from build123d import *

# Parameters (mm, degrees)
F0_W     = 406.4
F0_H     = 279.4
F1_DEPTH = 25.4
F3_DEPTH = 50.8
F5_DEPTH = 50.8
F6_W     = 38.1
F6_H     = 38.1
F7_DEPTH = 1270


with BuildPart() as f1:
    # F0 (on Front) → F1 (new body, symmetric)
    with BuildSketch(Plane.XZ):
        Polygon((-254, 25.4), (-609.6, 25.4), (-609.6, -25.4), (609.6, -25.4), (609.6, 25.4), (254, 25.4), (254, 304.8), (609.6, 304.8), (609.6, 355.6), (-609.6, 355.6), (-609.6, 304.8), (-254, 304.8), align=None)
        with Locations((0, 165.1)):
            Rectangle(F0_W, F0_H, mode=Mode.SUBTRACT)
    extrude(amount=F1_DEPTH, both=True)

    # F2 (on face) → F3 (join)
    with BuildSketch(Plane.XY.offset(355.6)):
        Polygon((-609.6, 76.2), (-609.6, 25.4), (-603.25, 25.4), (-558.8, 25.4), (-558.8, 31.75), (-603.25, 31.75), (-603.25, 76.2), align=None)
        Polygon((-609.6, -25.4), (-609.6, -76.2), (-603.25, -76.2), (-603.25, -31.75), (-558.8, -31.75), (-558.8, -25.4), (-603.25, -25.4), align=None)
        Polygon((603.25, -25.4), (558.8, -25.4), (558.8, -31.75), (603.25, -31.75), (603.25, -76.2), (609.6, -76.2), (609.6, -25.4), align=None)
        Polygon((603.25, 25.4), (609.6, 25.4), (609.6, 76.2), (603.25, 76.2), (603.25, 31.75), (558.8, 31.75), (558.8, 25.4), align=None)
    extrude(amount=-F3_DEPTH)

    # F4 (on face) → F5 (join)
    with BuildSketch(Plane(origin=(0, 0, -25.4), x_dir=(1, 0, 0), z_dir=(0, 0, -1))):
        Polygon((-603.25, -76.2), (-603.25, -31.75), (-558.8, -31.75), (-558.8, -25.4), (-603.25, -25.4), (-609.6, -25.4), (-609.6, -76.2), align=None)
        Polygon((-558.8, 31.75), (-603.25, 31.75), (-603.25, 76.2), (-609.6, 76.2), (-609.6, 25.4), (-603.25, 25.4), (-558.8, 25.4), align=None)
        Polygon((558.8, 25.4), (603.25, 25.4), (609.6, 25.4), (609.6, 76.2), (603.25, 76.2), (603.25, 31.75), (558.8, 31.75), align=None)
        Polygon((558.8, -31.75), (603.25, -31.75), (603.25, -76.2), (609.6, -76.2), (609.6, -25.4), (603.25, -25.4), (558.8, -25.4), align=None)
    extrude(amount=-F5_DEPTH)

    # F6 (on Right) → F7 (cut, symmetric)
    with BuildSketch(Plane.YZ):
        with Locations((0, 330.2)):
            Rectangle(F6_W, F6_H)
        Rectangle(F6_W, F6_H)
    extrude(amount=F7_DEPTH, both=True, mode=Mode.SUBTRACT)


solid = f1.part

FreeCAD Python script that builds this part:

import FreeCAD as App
import Part
import Sketcher
Q = App.Units.Quantity

doc = App.newDocument("Part")
params = doc.addObject("Spreadsheet::Sheet", "Params")
for row, (alias, value) in enumerate([
    ("sketch1_width", "14 in"),
    ("sketch1_width2", "48 in"),
    ("sketch1_width3", "16 in"),
    ("sketch1_height", "2 in"),
    ("sketch1_height2", "11 in"),
    ("pad1_length", "2 in"),
    ("sketch2_width", "2 in"),
    ("sketch2_width2", "1.75 in"),
    ("pad2_length", "2 in"),
    ("sketch3_width", "2 in"),
    ("sketch3_width2", "1.75 in"),
    ("pad3_length", "2 in"),
    ("sketch4_width", "1.5 in"),
    ("pocket1_length", "100 in"),
], start=1):
    params.set(f"A{row}", alias)
    params.set(f"B{row}", "=" + value)
    params.setAlias(f"B{row}", alias)

body = doc.addObject("PartDesign::Body", "Body")

# Sketch on XZ plane
sketch1 = body.newObject("Sketcher::SketchObject", "Sketch")
sketch1.AttachmentSupport = (doc.getObject("XZ_Plane"), [""])
sketch1.MapMode = "FlatFace"
sketch1.addGeometry(Part.LineSegment(App.Vector(-254, 25, 0), App.Vector(-610, 25, 0)), False)
sketch1.addGeometry(Part.LineSegment(App.Vector(-610, 25, 0), App.Vector(-610, -25, 0)), False)
sketch1.addGeometry(Part.LineSegment(App.Vector(-610, -25, 0), App.Vector(610, -25, 0)), False)
sketch1.addGeometry(Part.LineSegment(App.Vector(610, -25, 0), App.Vector(610, 25, 0)), False)
sketch1.addGeometry(Part.LineSegment(App.Vector(610, 25, 0), App.Vector(254, 25, 0)), False)
sketch1.addGeometry(Part.LineSegment(App.Vector(254, 25, 0), App.Vector(254, 305, 0)), False)
sketch1.addGeometry(Part.LineSegment(App.Vector(254, 305, 0), App.Vector(610, 305, 0)), False)
sketch1.addGeometry(Part.LineSegment(App.Vector(610, 305, 0), App.Vector(610, 356, 0)), False)
sketch1.addGeometry(Part.LineSegment(App.Vector(610, 356, 0), App.Vector(-610, 356, 0)), False)
sketch1.addGeometry(Part.LineSegment(App.Vector(-610, 356, 0), App.Vector(-610, 305, 0)), False)
sketch1.addGeometry(Part.LineSegment(App.Vector(-610, 305, 0), App.Vector(-254, 305, 0)), False)
sketch1.addGeometry(Part.LineSegment(App.Vector(-254, 305, 0), App.Vector(-254, 25, 0)), False)
sketch1.addGeometry(Part.LineSegment(App.Vector(203, 25, 0), App.Vector(-203, 25, 0)), False)
sketch1.addGeometry(Part.LineSegment(App.Vector(-203, 25, 0), App.Vector(-203, 305, 0)), False)
sketch1.addGeometry(Part.LineSegment(App.Vector(-203, 305, 0), App.Vector(203, 305, 0)), False)
sketch1.addGeometry(Part.LineSegment(App.Vector(203, 305, 0), App.Vector(203, 25, 0)), False)
sketch1.addConstraint(Sketcher.Constraint("Coincident", 0, 2, 1, 1))
sketch1.addConstraint(Sketcher.Constraint("Coincident", 1, 2, 2, 1))
sketch1.addConstraint(Sketcher.Constraint("Coincident", 2, 2, 3, 1))
sketch1.addConstraint(Sketcher.Constraint("Coincident", 3, 2, 4, 1))
sketch1.addConstraint(Sketcher.Constraint("Coincident", 4, 2, 5, 1))
sketch1.addConstraint(Sketcher.Constraint("Coincident", 5, 2, 6, 1))
sketch1.addConstraint(Sketcher.Constraint("Coincident", 6, 2, 7, 1))
sketch1.addConstraint(Sketcher.Constraint("Coincident", 7, 2, 8, 1))
sketch1.addConstraint(Sketcher.Constraint("Coincident", 8, 2, 9, 1))
sketch1.addConstraint(Sketcher.Constraint("Coincident", 9, 2, 10, 1))
sketch1.addConstraint(Sketcher.Constraint("Coincident", 10, 2, 11, 1))
sketch1.addConstraint(Sketcher.Constraint("Coincident", 11, 2, 0, 1))
sketch1.addConstraint(Sketcher.Constraint("Coincident", 12, 2, 13, 1))
sketch1.addConstraint(Sketcher.Constraint("Coincident", 13, 2, 14, 1))
sketch1.addConstraint(Sketcher.Constraint("Coincident", 14, 2, 15, 1))
sketch1.addConstraint(Sketcher.Constraint("Coincident", 15, 2, 12, 1))
sketch1.addConstraint(Sketcher.Constraint("Horizontal", 0))
sketch1.addConstraint(Sketcher.Constraint("Vertical", 1))
sketch1.addConstraint(Sketcher.Constraint("Horizontal", 2))
sketch1.addConstraint(Sketcher.Constraint("Vertical", 3))
sketch1.addConstraint(Sketcher.Constraint("Horizontal", 4))
sketch1.addConstraint(Sketcher.Constraint("Vertical", 5))
sketch1.addConstraint(Sketcher.Constraint("Horizontal", 6))
sketch1.addConstraint(Sketcher.Constraint("Vertical", 7))
sketch1.addConstraint(Sketcher.Constraint("Horizontal", 8))
sketch1.addConstraint(Sketcher.Constraint("Vertical", 9))
sketch1.addConstraint(Sketcher.Constraint("Horizontal", 10))
sketch1.addConstraint(Sketcher.Constraint("Vertical", 11))
sketch1.addConstraint(Sketcher.Constraint("Horizontal", 12))
sketch1.addConstraint(Sketcher.Constraint("Vertical", 13))
sketch1.addConstraint(Sketcher.Constraint("Horizontal", 14))
sketch1.addConstraint(Sketcher.Constraint("Vertical", 15))
sketch1.addConstraint(Sketcher.Constraint("Symmetric", 0, 2, 2, 2, -1, 1))
sketch1.addConstraint(Sketcher.Constraint("Symmetric", 6, 2, 9, 2, -2))
sketch1.addConstraint(Sketcher.Constraint("Symmetric", 4, 2, 11, 2, -2))
sketch1.addConstraint(Sketcher.Constraint("Horizontal", 11, 2, 12, 2))
sketch1.addConstraint(Sketcher.Constraint("Horizontal", 10, 2, 13, 2))
sketch1.addConstraint(Sketcher.Constraint("Vertical", 3, 2, 6, 2))
sketch1.addConstraint(Sketcher.Constraint("Equal", 3, 7))
sketch1.addConstraint(Sketcher.Constraint("DistanceX", 0, 2, 0, 1, Q("14 in")))
sketch1.addConstraint(Sketcher.Constraint("DistanceX", 2, 1, 2, 2, Q("48 in")))
sketch1.addConstraint(Sketcher.Constraint("DistanceX", 12, 2, 12, 1, Q("16 in")))
sketch1.addConstraint(Sketcher.Constraint("DistanceY", 1, 2, 1, 1, Q("2 in")))
sketch1.addConstraint(Sketcher.Constraint("DistanceY", 5, 1, 5, 2, Q("11 in")))
sketch1.addConstraint(Sketcher.Constraint("DistanceX", 12, 2, -1, 1, Q("8 in")))
sketch1.setExpression("Constraints[39]", "Params.sketch1_width")
sketch1.setExpression("Constraints[40]", "Params.sketch1_width2")
sketch1.setExpression("Constraints[41]", "Params.sketch1_width3")
sketch1.setExpression("Constraints[42]", "Params.sketch1_height")
sketch1.setExpression("Constraints[43]", "Params.sketch1_height2")
pad1 = body.newObject("PartDesign::Pad", "Pad")
pad1.Profile = sketch1
pad1.setExpression("Length", "Params.pad1_length")
pad1.Midplane = True

# Sketch on XY plane
sketch2 = body.newObject("Sketcher::SketchObject", "Sketch001")
sketch2.AttachmentSupport = (doc.getObject("XY_Plane"), [""])
sketch2.MapMode = "FlatFace"
sketch2.AttachmentOffset = App.Placement(App.Vector(0, 0, 14 * 25.4), App.Rotation())
sketch2.addGeometry(Part.LineSegment(App.Vector(-610, 76, 0), App.Vector(-610, 25, 0)), False)
sketch2.addGeometry(Part.LineSegment(App.Vector(-610, 25, 0), App.Vector(-559, 25, 0)), False)
sketch2.addGeometry(Part.LineSegment(App.Vector(-559, 25, 0), App.Vector(-559, 32, 0)), False)
sketch2.addGeometry(Part.LineSegment(App.Vector(-559, 32, 0), App.Vector(-603, 32, 0)), False)
sketch2.addGeometry(Part.LineSegment(App.Vector(-603, 32, 0), App.Vector(-603, 76, 0)), False)
sketch2.addGeometry(Part.LineSegment(App.Vector(-603, 76, 0), App.Vector(-610, 76, 0)), False)
sketch2.addGeometry(Part.LineSegment(App.Vector(-610, -25, 0), App.Vector(-610, -76, 0)), False)
sketch2.addGeometry(Part.LineSegment(App.Vector(-610, -76, 0), App.Vector(-603, -76, 0)), False)
sketch2.addGeometry(Part.LineSegment(App.Vector(-603, -76, 0), App.Vector(-603, -32, 0)), False)
sketch2.addGeometry(Part.LineSegment(App.Vector(-603, -32, 0), App.Vector(-559, -32, 0)), False)
sketch2.addGeometry(Part.LineSegment(App.Vector(-559, -32, 0), App.Vector(-559, -25, 0)), False)
sketch2.addGeometry(Part.LineSegment(App.Vector(-559, -25, 0), App.Vector(-610, -25, 0)), False)
sketch2.addGeometry(Part.LineSegment(App.Vector(559, -25, 0), App.Vector(559, -32, 0)), False)
sketch2.addGeometry(Part.LineSegment(App.Vector(559, -32, 0), App.Vector(603, -32, 0)), False)
sketch2.addGeometry(Part.LineSegment(App.Vector(603, -32, 0), App.Vector(603, -76, 0)), False)
sketch2.addGeometry(Part.LineSegment(App.Vector(603, -76, 0), App.Vector(610, -76, 0)), False)
sketch2.addGeometry(Part.LineSegment(App.Vector(610, -76, 0), App.Vector(610, -25, 0)), False)
sketch2.addGeometry(Part.LineSegment(App.Vector(610, -25, 0), App.Vector(559, -25, 0)), False)
sketch2.addGeometry(Part.LineSegment(App.Vector(610, 25, 0), App.Vector(610, 76, 0)), False)
sketch2.addGeometry(Part.LineSegment(App.Vector(610, 76, 0), App.Vector(603, 76, 0)), False)
sketch2.addGeometry(Part.LineSegment(App.Vector(603, 76, 0), App.Vector(603, 32, 0)), False)
sketch2.addGeometry(Part.LineSegment(App.Vector(603, 32, 0), App.Vector(559, 32, 0)), False)
sketch2.addGeometry(Part.LineSegment(App.Vector(559, 32, 0), App.Vector(559, 25, 0)), False)
sketch2.addGeometry(Part.LineSegment(App.Vector(559, 25, 0), App.Vector(610, 25, 0)), False)
sketch2.addConstraint(Sketcher.Constraint("Coincident", 0, 2, 1, 1))
sketch2.addConstraint(Sketcher.Constraint("Coincident", 1, 2, 2, 1))
sketch2.addConstraint(Sketcher.Constraint("Coincident", 2, 2, 3, 1))
sketch2.addConstraint(Sketcher.Constraint("Coincident", 3, 2, 4, 1))
sketch2.addConstraint(Sketcher.Constraint("Coincident", 4, 2, 5, 1))
sketch2.addConstraint(Sketcher.Constraint("Coincident", 5, 2, 0, 1))
sketch2.addConstraint(Sketcher.Constraint("Coincident", 6, 2, 7, 1))
sketch2.addConstraint(Sketcher.Constraint("Coincident", 7, 2, 8, 1))
sketch2.addConstraint(Sketcher.Constraint("Coincident", 8, 2, 9, 1))
sketch2.addConstraint(Sketcher.Constraint("Coincident", 9, 2, 10, 1))
sketch2.addConstraint(Sketcher.Constraint("Coincident", 10, 2, 11, 1))
sketch2.addConstraint(Sketcher.Constraint("Coincident", 11, 2, 6, 1))
sketch2.addConstraint(Sketcher.Constraint("Coincident", 12, 2, 13, 1))
sketch2.addConstraint(Sketcher.Constraint("Coincident", 13, 2, 14, 1))
sketch2.addConstraint(Sketcher.Constraint("Coincident", 14, 2, 15, 1))
sketch2.addConstraint(Sketcher.Constraint("Coincident", 15, 2, 16, 1))
sketch2.addConstraint(Sketcher.Constraint("Coincident", 16, 2, 17, 1))
sketch2.addConstraint(Sketcher.Constraint("Coincident", 17, 2, 12, 1))
sketch2.addConstraint(Sketcher.Constraint("Coincident", 18, 2, 19, 1))
sketch2.addConstraint(Sketcher.Constraint("Coincident", 19, 2, 20, 1))
sketch2.addConstraint(Sketcher.Constraint("Coincident", 20, 2, 21, 1))
sketch2.addConstraint(Sketcher.Constraint("Coincident", 21, 2, 22, 1))
sketch2.addConstraint(Sketcher.Constraint("Coincident", 22, 2, 23, 1))
sketch2.addConstraint(Sketcher.Constraint("Coincident", 23, 2, 18, 1))
sketch2.addConstraint(Sketcher.Constraint("Vertical", 0))
sketch2.addConstraint(Sketcher.Constraint("Horizontal", 1))
sketch2.addConstraint(Sketcher.Constraint("Vertical", 2))
sketch2.addConstraint(Sketcher.Constraint("Horizontal", 3))
sketch2.addConstraint(Sketcher.Constraint("Vertical", 4))
sketch2.addConstraint(Sketcher.Constraint("Horizontal", 5))
sketch2.addConstraint(Sketcher.Constraint("Vertical", 6))
sketch2.addConstraint(Sketcher.Constraint("Horizontal", 7))
sketch2.addConstraint(Sketcher.Constraint("Vertical", 8))
sketch2.addConstraint(Sketcher.Constraint("Horizontal", 9))
sketch2.addConstraint(Sketcher.Constraint("Vertical", 10))
sketch2.addConstraint(Sketcher.Constraint("Horizontal", 11))
sketch2.addConstraint(Sketcher.Constraint("Vertical", 12))
sketch2.addConstraint(Sketcher.Constraint("Horizontal", 13))
sketch2.addConstraint(Sketcher.Constraint("Vertical", 14))
sketch2.addConstraint(Sketcher.Constraint("Horizontal", 15))
sketch2.addConstraint(Sketcher.Constraint("Vertical", 16))
sketch2.addConstraint(Sketcher.Constraint("Horizontal", 17))
sketch2.addConstraint(Sketcher.Constraint("Vertical", 18))
sketch2.addConstraint(Sketcher.Constraint("Horizontal", 19))
sketch2.addConstraint(Sketcher.Constraint("Vertical", 20))
sketch2.addConstraint(Sketcher.Constraint("Horizontal", 21))
sketch2.addConstraint(Sketcher.Constraint("Vertical", 22))
sketch2.addConstraint(Sketcher.Constraint("Horizontal", 23))
sketch2.addConstraint(Sketcher.Constraint("Symmetric", 2, 2, 12, 2, -1, 1))
sketch2.addConstraint(Sketcher.Constraint("Symmetric", 4, 2, 14, 2, -1, 1))
sketch2.addConstraint(Sketcher.Constraint("Symmetric", 0, 2, 16, 2, -1, 1))
sketch2.addConstraint(Sketcher.Constraint("Symmetric", 6, 2, 18, 2, -1, 1))
sketch2.addConstraint(Sketcher.Constraint("Symmetric", 8, 2, 20, 2, -1, 1))
sketch2.addConstraint(Sketcher.Constraint("Symmetric", 10, 2, 22, 2, -1, 1))
sketch2.addConstraint(Sketcher.Constraint("Symmetric", 9, 2, 12, 2, -2))
sketch2.addConstraint(Sketcher.Constraint("Symmetric", 7, 2, 14, 2, -2))
sketch2.addConstraint(Sketcher.Constraint("Symmetric", 11, 2, 16, 2, -2))
sketch2.addConstraint(Sketcher.Constraint("Equal", 23, 0))
sketch2.addConstraint(Sketcher.Constraint("Equal", 19, 2))
sketch2.addConstraint(Sketcher.Constraint("DistanceX", 1, 1, 1, 2, Q("2 in")))
sketch2.addConstraint(Sketcher.Constraint("DistanceX", 0, 2, -1, 1, Q("24 in")))
sketch2.addConstraint(Sketcher.Constraint("DistanceY", -1, 1, 0, 2, Q("1 in")))
sketch2.addConstraint(Sketcher.Constraint("DistanceX", 3, 2, 3, 1, Q("1.75 in")))
sketch2.setExpression("Constraints[59]", "Params.sketch2_width")
sketch2.setExpression("Constraints[62]", "Params.sketch2_width2")
pad2 = body.newObject("PartDesign::Pad", "Pad001")
pad2.Profile = sketch2
pad2.setExpression("Length", "Params.pad2_length")
pad2.Reversed = True

# Sketch on XY plane
sketch3 = body.newObject("Sketcher::SketchObject", "Sketch002")
sketch3.AttachmentSupport = (doc.getObject("XY_Plane"), [""])
sketch3.MapMode = "FlatFace"
sketch3.AttachmentOffset = App.Placement(App.Vector(0, 0, -1 * 25.4), App.Rotation())
sketch3.addGeometry(Part.LineSegment(App.Vector(-603, 76, 0), App.Vector(-603, 32, 0)), False)
sketch3.addGeometry(Part.LineSegment(App.Vector(-603, 32, 0), App.Vector(-559, 32, 0)), False)
sketch3.addGeometry(Part.LineSegment(App.Vector(-559, 32, 0), App.Vector(-559, 25, 0)), False)
sketch3.addGeometry(Part.LineSegment(App.Vector(-559, 25, 0), App.Vector(-610, 25, 0)), False)
sketch3.addGeometry(Part.LineSegment(App.Vector(-610, 25, 0), App.Vector(-610, 76, 0)), False)
sketch3.addGeometry(Part.LineSegment(App.Vector(-610, 76, 0), App.Vector(-603, 76, 0)), False)
sketch3.addGeometry(Part.LineSegment(App.Vector(-559, -32, 0), App.Vector(-603, -32, 0)), False)
sketch3.addGeometry(Part.LineSegment(App.Vector(-603, -32, 0), App.Vector(-603, -76, 0)), False)
sketch3.addGeometry(Part.LineSegment(App.Vector(-603, -76, 0), App.Vector(-610, -76, 0)), False)
sketch3.addGeometry(Part.LineSegment(App.Vector(-610, -76, 0), App.Vector(-610, -25, 0)), False)
sketch3.addGeometry(Part.LineSegment(App.Vector(-610, -25, 0), App.Vector(-559, -25, 0)), False)
sketch3.addGeometry(Part.LineSegment(App.Vector(-559, -25, 0), App.Vector(-559, -32, 0)), False)
sketch3.addGeometry(Part.LineSegment(App.Vector(559, -25, 0), App.Vector(610, -25, 0)), False)
sketch3.addGeometry(Part.LineSegment(App.Vector(610, -25, 0), App.Vector(610, -76, 0)), False)
sketch3.addGeometry(Part.LineSegment(App.Vector(610, -76, 0), App.Vector(603, -76, 0)), False)
sketch3.addGeometry(Part.LineSegment(App.Vector(603, -76, 0), App.Vector(603, -32, 0)), False)
sketch3.addGeometry(Part.LineSegment(App.Vector(603, -32, 0), App.Vector(559, -32, 0)), False)
sketch3.addGeometry(Part.LineSegment(App.Vector(559, -32, 0), App.Vector(559, -25, 0)), False)
sketch3.addGeometry(Part.LineSegment(App.Vector(559, 32, 0), App.Vector(603, 32, 0)), False)
sketch3.addGeometry(Part.LineSegment(App.Vector(603, 32, 0), App.Vector(603, 76, 0)), False)
sketch3.addGeometry(Part.LineSegment(App.Vector(603, 76, 0), App.Vector(610, 76, 0)), False)
sketch3.addGeometry(Part.LineSegment(App.Vector(610, 76, 0), App.Vector(610, 25, 0)), False)
sketch3.addGeometry(Part.LineSegment(App.Vector(610, 25, 0), App.Vector(559, 25, 0)), False)
sketch3.addGeometry(Part.LineSegment(App.Vector(559, 25, 0), App.Vector(559, 32, 0)), False)
sketch3.addConstraint(Sketcher.Constraint("Coincident", 0, 2, 1, 1))
sketch3.addConstraint(Sketcher.Constraint("Coincident", 1, 2, 2, 1))
sketch3.addConstraint(Sketcher.Constraint("Coincident", 2, 2, 3, 1))
sketch3.addConstraint(Sketcher.Constraint("Coincident", 3, 2, 4, 1))
sketch3.addConstraint(Sketcher.Constraint("Coincident", 4, 2, 5, 1))
sketch3.addConstraint(Sketcher.Constraint("Coincident", 5, 2, 0, 1))
sketch3.addConstraint(Sketcher.Constraint("Coincident", 6, 2, 7, 1))
sketch3.addConstraint(Sketcher.Constraint("Coincident", 7, 2, 8, 1))
sketch3.addConstraint(Sketcher.Constraint("Coincident", 8, 2, 9, 1))
sketch3.addConstraint(Sketcher.Constraint("Coincident", 9, 2, 10, 1))
sketch3.addConstraint(Sketcher.Constraint("Coincident", 10, 2, 11, 1))
sketch3.addConstraint(Sketcher.Constraint("Coincident", 11, 2, 6, 1))
sketch3.addConstraint(Sketcher.Constraint("Coincident", 12, 2, 13, 1))
sketch3.addConstraint(Sketcher.Constraint("Coincident", 13, 2, 14, 1))
sketch3.addConstraint(Sketcher.Constraint("Coincident", 14, 2, 15, 1))
sketch3.addConstraint(Sketcher.Constraint("Coincident", 15, 2, 16, 1))
sketch3.addConstraint(Sketcher.Constraint("Coincident", 16, 2, 17, 1))
sketch3.addConstraint(Sketcher.Constraint("Coincident", 17, 2, 12, 1))
sketch3.addConstraint(Sketcher.Constraint("Coincident", 18, 2, 19, 1))
sketch3.addConstraint(Sketcher.Constraint("Coincident", 19, 2, 20, 1))
sketch3.addConstraint(Sketcher.Constraint("Coincident", 20, 2, 21, 1))
sketch3.addConstraint(Sketcher.Constraint("Coincident", 21, 2, 22, 1))
sketch3.addConstraint(Sketcher.Constraint("Coincident", 22, 2, 23, 1))
sketch3.addConstraint(Sketcher.Constraint("Coincident", 23, 2, 18, 1))
sketch3.addConstraint(Sketcher.Constraint("Vertical", 0))
sketch3.addConstraint(Sketcher.Constraint("Horizontal", 1))
sketch3.addConstraint(Sketcher.Constraint("Vertical", 2))
sketch3.addConstraint(Sketcher.Constraint("Horizontal", 3))
sketch3.addConstraint(Sketcher.Constraint("Vertical", 4))
sketch3.addConstraint(Sketcher.Constraint("Horizontal", 5))
sketch3.addConstraint(Sketcher.Constraint("Horizontal", 6))
sketch3.addConstraint(Sketcher.Constraint("Vertical", 7))
sketch3.addConstraint(Sketcher.Constraint("Horizontal", 8))
sketch3.addConstraint(Sketcher.Constraint("Vertical", 9))
sketch3.addConstraint(Sketcher.Constraint("Horizontal", 10))
sketch3.addConstraint(Sketcher.Constraint("Vertical", 11))
sketch3.addConstraint(Sketcher.Constraint("Horizontal", 12))
sketch3.addConstraint(Sketcher.Constraint("Vertical", 13))
sketch3.addConstraint(Sketcher.Constraint("Horizontal", 14))
sketch3.addConstraint(Sketcher.Constraint("Vertical", 15))
sketch3.addConstraint(Sketcher.Constraint("Horizontal", 16))
sketch3.addConstraint(Sketcher.Constraint("Vertical", 17))
sketch3.addConstraint(Sketcher.Constraint("Horizontal", 18))
sketch3.addConstraint(Sketcher.Constraint("Vertical", 19))
sketch3.addConstraint(Sketcher.Constraint("Horizontal", 20))
sketch3.addConstraint(Sketcher.Constraint("Vertical", 21))
sketch3.addConstraint(Sketcher.Constraint("Horizontal", 22))
sketch3.addConstraint(Sketcher.Constraint("Vertical", 23))
sketch3.addConstraint(Sketcher.Constraint("Symmetric", 3, 2, 12, 2, -1, 1))
sketch3.addConstraint(Sketcher.Constraint("Symmetric", 5, 2, 14, 2, -1, 1))
sketch3.addConstraint(Sketcher.Constraint("Symmetric", 1, 2, 16, 2, -1, 1))
sketch3.addConstraint(Sketcher.Constraint("Symmetric", 6, 2, 18, 2, -1, 1))
sketch3.addConstraint(Sketcher.Constraint("Symmetric", 8, 2, 20, 2, -1, 1))
sketch3.addConstraint(Sketcher.Constraint("Symmetric", 10, 2, 22, 2, -1, 1))
sketch3.addConstraint(Sketcher.Constraint("Symmetric", 9, 2, 12, 2, -2))
sketch3.addConstraint(Sketcher.Constraint("Symmetric", 7, 2, 14, 2, -2))
sketch3.addConstraint(Sketcher.Constraint("Symmetric", 11, 2, 16, 2, -2))
sketch3.addConstraint(Sketcher.Constraint("Equal", 18, 0))
sketch3.addConstraint(Sketcher.Constraint("Equal", 20, 2))
sketch3.addConstraint(Sketcher.Constraint("DistanceX", 3, 2, 3, 1, Q("2 in")))
sketch3.addConstraint(Sketcher.Constraint("DistanceX", 1, 2, -1, 1, Q("22 in")))
sketch3.addConstraint(Sketcher.Constraint("DistanceY", -1, 1, 2, 2, Q("1 in")))
sketch3.addConstraint(Sketcher.Constraint("DistanceX", 1, 1, 1, 2, Q("1.75 in")))
sketch3.setExpression("Constraints[59]", "Params.sketch3_width")
sketch3.setExpression("Constraints[62]", "Params.sketch3_width2")
pad3 = body.newObject("PartDesign::Pad", "Pad002")
pad3.Profile = sketch3
pad3.setExpression("Length", "Params.pad3_length")

# Sketch on YZ plane
sketch4 = body.newObject("Sketcher::SketchObject", "Sketch003")
sketch4.AttachmentSupport = (doc.getObject("YZ_Plane"), [""])
sketch4.MapMode = "FlatFace"
sketch4.addGeometry(Part.LineSegment(App.Vector(-19, 349, 0), App.Vector(-19, 311, 0)), False)
sketch4.addGeometry(Part.LineSegment(App.Vector(-19, 311, 0), App.Vector(19, 311, 0)), False)
sketch4.addGeometry(Part.LineSegment(App.Vector(19, 311, 0), App.Vector(19, 349, 0)), False)
sketch4.addGeometry(Part.LineSegment(App.Vector(19, 349, 0), App.Vector(-19, 349, 0)), False)
sketch4.addGeometry(Part.LineSegment(App.Vector(-19, 19, 0), App.Vector(-19, -19, 0)), False)
sketch4.addGeometry(Part.LineSegment(App.Vector(-19, -19, 0), App.Vector(19, -19, 0)), False)
sketch4.addGeometry(Part.LineSegment(App.Vector(19, -19, 0), App.Vector(19, 19, 0)), False)
sketch4.addGeometry(Part.LineSegment(App.Vector(19, 19, 0), App.Vector(-19, 19, 0)), False)
sketch4.addConstraint(Sketcher.Constraint("Coincident", 0, 2, 1, 1))
sketch4.addConstraint(Sketcher.Constraint("Coincident", 1, 2, 2, 1))
sketch4.addConstraint(Sketcher.Constraint("Coincident", 2, 2, 3, 1))
sketch4.addConstraint(Sketcher.Constraint("Coincident", 3, 2, 0, 1))
sketch4.addConstraint(Sketcher.Constraint("Coincident", 4, 2, 5, 1))
sketch4.addConstraint(Sketcher.Constraint("Coincident", 5, 2, 6, 1))
sketch4.addConstraint(Sketcher.Constraint("Coincident", 6, 2, 7, 1))
sketch4.addConstraint(Sketcher.Constraint("Coincident", 7, 2, 4, 1))
sketch4.addConstraint(Sketcher.Constraint("Vertical", 0))
sketch4.addConstraint(Sketcher.Constraint("Horizontal", 1))
sketch4.addConstraint(Sketcher.Constraint("Vertical", 2))
sketch4.addConstraint(Sketcher.Constraint("Horizontal", 3))
sketch4.addConstraint(Sketcher.Constraint("Vertical", 4))
sketch4.addConstraint(Sketcher.Constraint("Horizontal", 5))
sketch4.addConstraint(Sketcher.Constraint("Vertical", 6))
sketch4.addConstraint(Sketcher.Constraint("Horizontal", 7))
sketch4.addConstraint(Sketcher.Constraint("Symmetric", 4, 2, 6, 2, -1, 1))
sketch4.addConstraint(Sketcher.Constraint("Vertical", 3, 2, 4, 2))
sketch4.addConstraint(Sketcher.Constraint("Vertical", 2, 2, 5, 2))
sketch4.addConstraint(Sketcher.Constraint("Equal", 7, 0))
sketch4.addConstraint(Sketcher.Constraint("Equal", 2, 4))
sketch4.addConstraint(Sketcher.Constraint("DistanceX", 1, 1, 1, 2, Q("1.5 in")))
sketch4.addConstraint(Sketcher.Constraint("DistanceY", 4, 2, 0, 2, Q("13 in")))
sketch4.setExpression("Constraints[21]", "Params.sketch4_width")
pocket1 = body.newObject("PartDesign::Pocket", "Pocket")
pocket1.Profile = sketch4
pocket1.setExpression("Length", "Params.pocket1_length")
pocket1.Midplane = True

doc.recompute()
